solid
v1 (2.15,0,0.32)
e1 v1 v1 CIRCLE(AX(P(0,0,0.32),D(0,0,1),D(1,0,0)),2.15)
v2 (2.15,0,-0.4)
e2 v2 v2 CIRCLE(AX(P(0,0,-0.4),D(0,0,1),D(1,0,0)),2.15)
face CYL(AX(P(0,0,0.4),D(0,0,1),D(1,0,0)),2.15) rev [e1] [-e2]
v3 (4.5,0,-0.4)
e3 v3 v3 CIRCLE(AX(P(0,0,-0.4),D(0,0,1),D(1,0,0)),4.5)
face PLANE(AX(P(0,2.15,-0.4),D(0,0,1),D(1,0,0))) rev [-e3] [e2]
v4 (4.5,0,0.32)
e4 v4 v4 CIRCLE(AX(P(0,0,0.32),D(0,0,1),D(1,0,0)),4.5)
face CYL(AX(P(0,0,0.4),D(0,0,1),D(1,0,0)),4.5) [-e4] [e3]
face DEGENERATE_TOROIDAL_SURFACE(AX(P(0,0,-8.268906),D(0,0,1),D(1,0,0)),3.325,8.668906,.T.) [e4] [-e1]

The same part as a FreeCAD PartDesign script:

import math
import FreeCAD as App
import Part
import Sketcher

V = App.Vector

doc = App.newDocument("Part")
body = doc.addObject("PartDesign::Body", "Body")

# Sketch on YZ plane
sketch1 = doc.addObject("Sketcher::SketchObject", "Sketch")
body.addObject(sketch1)
sketch1.AttachmentSupport = (doc.YZ_Plane, [""])
sketch1.MapMode = "FlatFace"
sketch1.addGeometry(Part.LineSegment(V(4.5, -0.4, 0), V(4.5, 0.32, 0)), False)
sketch1.addGeometry(Part.ArcOfCircle(Part.Circle(V(3.325, -8.268906, 0), V(0, 0, 1), 8.668906), math.radians(82.210044), math.radians(97.789956)), False)
sketch1.addGeometry(Part.LineSegment(V(2.15, 0.32, 0), V(2.15, -0.4, 0)), False)
sketch1.addGeometry(Part.LineSegment(V(2.15, -0.4, 0), V(4.5, -0.4, 0)), False)
sketch1.addConstraint(Sketcher.Constraint("Coincident", 0, 2, 1, 1))
sketch1.addConstraint(Sketcher.Constraint("Coincident", 1, 2, 2, 1))
sketch1.addConstraint(Sketcher.Constraint("Coincident", 2, 2, 3, 1))
sketch1.addConstraint(Sketcher.Constraint("Coincident", 3, 2, 0, 1))
sketch1.addConstraint(Sketcher.Constraint("Vertical", 0))
sketch1.addConstraint(Sketcher.Constraint("Vertical", 2))
sketch1.addConstraint(Sketcher.Constraint("Horizontal", 3))
sketch1.addConstraint(Sketcher.Constraint("Horizontal", 0, 2, 1, 2))
sketch1.addConstraint(Sketcher.Constraint("DistanceX", 3, 1, 3, 2, 2.35))
sketch1.addConstraint(Sketcher.Constraint("DistanceY", 0, 1, 0, 2, 0.72))
sketch1.addConstraint(Sketcher.Constraint("DistanceX", -1, 1, 0, 2, 4.5))
sketch1.addConstraint(Sketcher.Constraint("DistanceY", 2, 2, -1, 1, 0.4))
sketch1.addConstraint(Sketcher.Constraint("Radius", 1, 8.668906))
revolution = doc.addObject("PartDesign::Revolution", "Revolution")
body.addObject(revolution)
revolution.Profile = sketch1
revolution.ReferenceAxis = (sketch1, ["V_Axis"])
revolution.Angle = 360

doc.recompute()
